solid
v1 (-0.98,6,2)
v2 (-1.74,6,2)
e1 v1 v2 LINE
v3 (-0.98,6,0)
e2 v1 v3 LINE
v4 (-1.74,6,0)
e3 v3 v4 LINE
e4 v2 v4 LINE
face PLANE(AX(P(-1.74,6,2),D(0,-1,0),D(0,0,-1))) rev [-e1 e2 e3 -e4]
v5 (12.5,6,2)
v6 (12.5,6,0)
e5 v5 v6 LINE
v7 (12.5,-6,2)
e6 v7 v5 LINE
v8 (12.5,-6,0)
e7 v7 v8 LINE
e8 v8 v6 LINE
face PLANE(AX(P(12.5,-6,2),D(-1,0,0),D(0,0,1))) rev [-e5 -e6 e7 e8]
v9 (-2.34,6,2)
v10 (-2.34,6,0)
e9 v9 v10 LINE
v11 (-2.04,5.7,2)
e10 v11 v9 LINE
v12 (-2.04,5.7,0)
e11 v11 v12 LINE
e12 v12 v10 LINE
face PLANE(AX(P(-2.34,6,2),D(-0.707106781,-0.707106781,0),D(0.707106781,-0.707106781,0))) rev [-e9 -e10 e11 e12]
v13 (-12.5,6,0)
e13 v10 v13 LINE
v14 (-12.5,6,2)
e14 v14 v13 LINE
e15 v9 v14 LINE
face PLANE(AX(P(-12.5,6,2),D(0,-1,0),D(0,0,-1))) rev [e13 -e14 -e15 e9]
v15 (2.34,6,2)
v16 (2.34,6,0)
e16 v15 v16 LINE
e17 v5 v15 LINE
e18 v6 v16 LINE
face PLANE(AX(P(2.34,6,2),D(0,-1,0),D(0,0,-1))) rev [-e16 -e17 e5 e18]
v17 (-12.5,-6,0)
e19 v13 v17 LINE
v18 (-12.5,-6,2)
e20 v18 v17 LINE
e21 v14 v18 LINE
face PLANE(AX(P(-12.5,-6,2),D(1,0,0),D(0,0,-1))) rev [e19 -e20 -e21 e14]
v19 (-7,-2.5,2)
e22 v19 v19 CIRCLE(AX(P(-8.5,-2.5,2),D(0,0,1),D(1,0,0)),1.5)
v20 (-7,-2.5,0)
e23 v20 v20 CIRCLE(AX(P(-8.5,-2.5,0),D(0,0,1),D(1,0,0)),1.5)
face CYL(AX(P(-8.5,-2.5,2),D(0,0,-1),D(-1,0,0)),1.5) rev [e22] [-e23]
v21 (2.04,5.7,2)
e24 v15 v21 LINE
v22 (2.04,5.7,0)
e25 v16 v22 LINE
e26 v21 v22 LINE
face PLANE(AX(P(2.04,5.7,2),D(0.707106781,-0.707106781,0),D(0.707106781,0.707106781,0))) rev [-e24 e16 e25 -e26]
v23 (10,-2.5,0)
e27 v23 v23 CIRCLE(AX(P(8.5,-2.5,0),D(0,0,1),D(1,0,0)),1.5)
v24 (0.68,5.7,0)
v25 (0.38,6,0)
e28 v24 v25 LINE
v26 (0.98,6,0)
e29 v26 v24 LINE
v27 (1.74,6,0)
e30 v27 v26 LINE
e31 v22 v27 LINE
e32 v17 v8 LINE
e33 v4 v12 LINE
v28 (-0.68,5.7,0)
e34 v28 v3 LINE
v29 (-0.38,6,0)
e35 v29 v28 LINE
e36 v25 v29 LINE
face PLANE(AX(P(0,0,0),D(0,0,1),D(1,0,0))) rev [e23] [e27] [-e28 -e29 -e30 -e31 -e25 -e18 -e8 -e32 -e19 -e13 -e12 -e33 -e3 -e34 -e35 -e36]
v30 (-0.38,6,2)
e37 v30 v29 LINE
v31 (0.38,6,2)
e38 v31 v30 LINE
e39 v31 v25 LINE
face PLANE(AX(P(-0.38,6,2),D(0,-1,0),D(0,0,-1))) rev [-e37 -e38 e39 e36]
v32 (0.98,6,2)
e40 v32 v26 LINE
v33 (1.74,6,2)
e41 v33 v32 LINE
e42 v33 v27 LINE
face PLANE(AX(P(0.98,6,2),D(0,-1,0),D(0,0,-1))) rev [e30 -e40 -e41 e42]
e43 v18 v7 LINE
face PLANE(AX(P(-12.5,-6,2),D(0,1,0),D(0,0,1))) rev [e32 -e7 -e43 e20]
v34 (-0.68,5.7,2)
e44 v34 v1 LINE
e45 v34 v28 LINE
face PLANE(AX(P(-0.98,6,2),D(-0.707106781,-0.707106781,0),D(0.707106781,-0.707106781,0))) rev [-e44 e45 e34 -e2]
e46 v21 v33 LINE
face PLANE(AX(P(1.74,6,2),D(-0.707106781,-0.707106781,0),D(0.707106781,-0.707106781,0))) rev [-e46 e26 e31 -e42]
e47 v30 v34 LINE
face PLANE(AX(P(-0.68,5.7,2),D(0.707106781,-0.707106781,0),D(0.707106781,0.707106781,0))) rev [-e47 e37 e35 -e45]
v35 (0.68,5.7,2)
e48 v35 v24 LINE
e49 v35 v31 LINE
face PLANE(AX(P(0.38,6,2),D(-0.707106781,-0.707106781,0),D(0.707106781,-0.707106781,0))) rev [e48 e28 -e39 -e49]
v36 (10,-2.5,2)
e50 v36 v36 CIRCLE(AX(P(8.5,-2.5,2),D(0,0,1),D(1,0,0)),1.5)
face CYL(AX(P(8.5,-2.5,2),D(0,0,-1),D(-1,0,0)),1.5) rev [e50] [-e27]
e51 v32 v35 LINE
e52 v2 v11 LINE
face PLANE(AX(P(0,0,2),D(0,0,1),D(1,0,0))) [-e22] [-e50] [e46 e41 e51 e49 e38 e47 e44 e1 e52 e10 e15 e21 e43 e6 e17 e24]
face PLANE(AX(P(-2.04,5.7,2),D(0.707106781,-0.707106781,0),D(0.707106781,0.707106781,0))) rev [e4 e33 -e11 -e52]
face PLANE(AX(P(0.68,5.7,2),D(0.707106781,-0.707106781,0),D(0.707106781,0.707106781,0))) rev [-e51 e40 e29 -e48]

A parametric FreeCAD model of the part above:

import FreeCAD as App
import Part
import Sketcher

V = App.Vector
Q = App.Units.Quantity


def add_polygon(sketch, points):
    """Adds a closed chain of lines whose ends are joined by coincident constraints."""
    first, n = sketch.GeometryCount, len(points)
    for a, b in zip(points, points[1:] + points[:1]):
        sketch.addGeometry(Part.LineSegment(App.Vector(*a, 0), App.Vector(*b, 0)), False)
    for i in range(n):
        sketch.addConstraint(Sketcher.Constraint("Coincident", first + i, 2, first + (i + 1) % n, 1))

doc = App.newDocument("Part")
body = doc.addObject("PartDesign::Body", "Body")

# Sketch on XY plane
sketch1 = body.newObject("Sketcher::SketchObject", "Sketch")
sketch1.AttachmentSupport = (doc.getObject("XY_Plane"), [""])
sketch1.MapMode = "FlatFace"
add_polygon(sketch1, [(-2.04, 5.7), (-2.34, 6), (-12.5, 6), (-12.5, -6), (12.5, -6), (12.5, 6), (2.34, 6), (2.04, 5.7), (1.74, 6), (0.98, 6), (0.68, 5.7), (0.38, 6), (-0.38, 6), (-0.68, 5.7), (-0.98, 6), (-1.74, 6)])  # lines 0-15
sketch1.addGeometry(Part.Circle(V(8.5, -2.5, 0), V(0, 0, 1), 1.5), False)  # 16
sketch1.addGeometry(Part.Circle(V(-8.5, -2.5, 0), V(0, 0, 1), 1.5), False)  # 17
sketch1.addConstraint(Sketcher.Constraint("Horizontal", 1))
sketch1.addConstraint(Sketcher.Constraint("Vertical", 2))
sketch1.addConstraint(Sketcher.Constraint("Horizontal", 3))
sketch1.addConstraint(Sketcher.Constraint("Vertical", 4))
sketch1.addConstraint(Sketcher.Constraint("Horizontal", 5))
sketch1.addConstraint(Sketcher.Constraint("Horizontal", 8))
sketch1.addConstraint(Sketcher.Constraint("Horizontal", 11))
sketch1.addConstraint(Sketcher.Constraint("Horizontal", 14))
sketch1.addConstraint(Sketcher.Constraint("Equal", 16, 17))
sketch1.addConstraint(Sketcher.Constraint("Symmetric", 1, 2, 3, 2, -1, 1))
sketch1.addConstraint(Sketcher.Constraint("Symmetric", 16, 3, 17, 3, -2))
sketch1.addConstraint(Sketcher.Constraint("Symmetric", 0, 2, 5, 2, -2))
sketch1.addConstraint(Sketcher.Constraint("Symmetric", 9, 2, 12, 2, -2))
sketch1.addConstraint(Sketcher.Constraint("Symmetric", 8, 2, 13, 2, -2))
sketch1.addConstraint(Sketcher.Constraint("Symmetric", 6, 2, 15, 2, -2))
sketch1.addConstraint(Sketcher.Constraint("Perpendicular", 0, 6))
sketch1.addConstraint(Sketcher.Constraint("Perpendicular", 6, 7))
sketch1.addConstraint(Sketcher.Constraint("Perpendicular", 7, 9))
sketch1.addConstraint(Sketcher.Constraint("Perpendicular", 9, 10))
sketch1.addConstraint(Sketcher.Constraint("Perpendicular", 10, 12))
sketch1.addConstraint(Sketcher.Constraint("Perpendicular", 13, 15))
sketch1.addConstraint(Sketcher.Constraint("Horizontal", 5, 2, 7, 2))
sketch1.addConstraint(Sketcher.Constraint("Horizontal", 6, 2, 9, 2))
sketch1.addConstraint(Sketcher.Constraint("Horizontal", 8, 2, 10, 2))
sketch1.addConstraint(Sketcher.Constraint("Equal", 8, 11))
sketch1.addConstraint(Sketcher.Constraint("Diameter", 16, Q("3 mm")))
sketch1.addConstraint(Sketcher.Constraint("DistanceX", 3, 1, 3, 2, Q("25 mm")))
sketch1.addConstraint(Sketcher.Constraint("DistanceY", 2, 2, 2, 1, Q("12 mm")))
sketch1.addConstraint(Sketcher.Constraint("DistanceX", 17, 3, 16, 3, Q("17 mm")))
sketch1.addConstraint(Sketcher.Constraint("DistanceX", 1, 2, 1, 1, Q("10.16 mm")))
sketch1.addConstraint(Sketcher.Constraint("DistanceX", 8, 2, 8, 1, Q("0.76 mm")))
sketch1.addConstraint(Sketcher.Constraint("DistanceY", 16, 3, -1, 1, Q("2.5 mm")))
pad1 = body.newObject("PartDesign::Pad", "Pad")
pad1.Profile = sketch1
pad1.Length = 2

doc.recompute()
